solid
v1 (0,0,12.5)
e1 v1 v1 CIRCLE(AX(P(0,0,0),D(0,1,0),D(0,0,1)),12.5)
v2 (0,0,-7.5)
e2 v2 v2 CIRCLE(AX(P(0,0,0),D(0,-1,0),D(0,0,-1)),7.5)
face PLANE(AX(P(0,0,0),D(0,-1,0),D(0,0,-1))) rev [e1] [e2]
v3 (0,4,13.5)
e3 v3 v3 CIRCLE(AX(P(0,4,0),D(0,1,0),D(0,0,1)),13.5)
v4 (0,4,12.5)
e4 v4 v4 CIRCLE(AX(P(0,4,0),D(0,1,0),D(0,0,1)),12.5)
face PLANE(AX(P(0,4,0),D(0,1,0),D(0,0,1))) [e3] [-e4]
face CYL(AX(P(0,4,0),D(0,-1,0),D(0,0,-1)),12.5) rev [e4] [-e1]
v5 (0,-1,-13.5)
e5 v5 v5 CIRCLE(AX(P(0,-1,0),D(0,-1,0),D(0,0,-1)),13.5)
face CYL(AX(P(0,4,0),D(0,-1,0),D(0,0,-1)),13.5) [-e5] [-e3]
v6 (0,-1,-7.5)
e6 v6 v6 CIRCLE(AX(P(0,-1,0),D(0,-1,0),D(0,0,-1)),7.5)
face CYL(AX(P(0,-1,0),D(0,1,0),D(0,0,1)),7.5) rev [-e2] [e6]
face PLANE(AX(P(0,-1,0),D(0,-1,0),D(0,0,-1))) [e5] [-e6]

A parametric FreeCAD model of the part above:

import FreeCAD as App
import Part
import Sketcher
Q = App.Units.Quantity

doc = App.newDocument("Part")
body = doc.addObject("PartDesign::Body", "Body")

sketch1 = body.newObject("Sketcher::SketchObject", "Sketch")
sketch1.AttachmentSupport = (doc.getObject("XZ_Plane"), [""])
sketch1.MapMode = "FlatFace"
sketch1.addGeometry(Part.Circle(App.Vector(0, 0, 0), App.Vector(0, 0, 1), 13.5), False)
sketch1.addGeometry(Part.Circle(App.Vector(0, 0, 0), App.Vector(0, 0, 1), 12.5), False)
sketch1.addConstraint(Sketcher.Constraint("Coincident", 0, 3, -1, 1))
sketch1.addConstraint(Sketcher.Constraint("Coincident", 1, 3, -1, 1))
sketch1.addConstraint(Sketcher.Constraint("Diameter", 0, Q("27 mm")))
sketch1.addConstraint(Sketcher.Constraint("Diameter", 1, Q("25 mm")))
pad1 = body.newObject("PartDesign::Pad", "Pad")
pad1.Profile = sketch1
pad1.Length = 4
pad1.Reversed = True

sketch2 = body.newObject("Sketcher::SketchObject", "Sketch001")
sketch2.AttachmentSupport = (doc.getObject("XZ_Plane"), [""])
sketch2.MapMode = "FlatFace"
sketch2.AttachmentOffset = App.Placement(App.Vector(0, 0, 1), App.Rotation())
sketch2.addGeometry(Part.Circle(App.Vector(0, 0, 0), App.Vector(0, 0, 1), 13.5), False)
sketch2.addGeometry(Part.Circle(App.Vector(0, 0, 0), App.Vector(0, 0, 1), 7.5), False)
sketch2.addConstraint(Sketcher.Constraint("Coincident", 0, 3, -1, 1))
sketch2.addConstraint(Sketcher.Constraint("Coincident", 1, 3, -1, 1))
sketch2.addConstraint(Sketcher.Constraint("Diameter", 0, Q("27 mm")))
sketch2.addConstraint(Sketcher.Constraint("Diameter", 1, Q("15 mm")))
pad2 = body.newObject("PartDesign::Pad", "Pad001")
pad2.Profile = sketch2
pad2.Length = 1
pad2.Reversed = True

doc.recompute()
